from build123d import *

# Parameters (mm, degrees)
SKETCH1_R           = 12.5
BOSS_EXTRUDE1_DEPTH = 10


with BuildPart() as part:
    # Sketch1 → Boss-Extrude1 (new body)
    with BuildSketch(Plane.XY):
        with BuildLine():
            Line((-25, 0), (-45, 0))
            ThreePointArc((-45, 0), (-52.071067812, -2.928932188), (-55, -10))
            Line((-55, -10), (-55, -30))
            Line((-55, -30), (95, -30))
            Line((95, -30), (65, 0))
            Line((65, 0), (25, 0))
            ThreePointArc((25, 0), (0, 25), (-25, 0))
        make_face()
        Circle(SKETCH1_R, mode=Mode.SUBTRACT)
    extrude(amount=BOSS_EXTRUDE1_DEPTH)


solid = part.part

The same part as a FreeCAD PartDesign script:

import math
import FreeCAD as App
import Part
import Sketcher
from FreeCAD import Vector
Q = App.Units.Quantity

doc = App.newDocument("Part")
body = doc.addObject("PartDesign::Body", "Body")

sketch1 = doc.addObject("Sketcher::SketchObject", "Sketch")
body.addObject(sketch1)
sketch1.AttachmentSupport = (doc.XY_Plane, [""])
sketch1.MapMode = "FlatFace"
sketch1.addGeometry([
    Part.LineSegment(Vector(-25, 0, 0), Vector(-45, 0, 0)),
    Part.ArcOfCircle(Part.Circle(Vector(-45, -10, 0), Vector(0, 0, 1), 10), math.radians(90), math.radians(180)),
    Part.LineSegment(Vector(-55, -10, 0), Vector(-55, -30, 0)),
    Part.LineSegment(Vector(-55, -30, 0), Vector(95, -30, 0)),
    Part.LineSegment(Vector(95, -30, 0), Vector(65, 0, 0)),
    Part.LineSegment(Vector(65, 0, 0), Vector(25, 0, 0)),
    Part.ArcOfCircle(Part.Circle(Vector(0, 0, 0), Vector(0, 0, 1), 25), math.radians(0), math.radians(180)),
    Part.Circle(Vector(0, 0, 0), Vector(0, 0, 1), 12),
], False)
sketch1.addConstraint([
    Sketcher.Constraint("Tangent", 0, 2, 1, 1),
    Sketcher.Constraint("Tangent", 1, 2, 2, 1),
    Sketcher.Constraint("Coincident", 2, 2, 3, 1),
    Sketcher.Constraint("Coincident", 3, 2, 4, 1),
    Sketcher.Constraint("Coincident", 4, 2, 5, 1),
    Sketcher.Constraint("Coincident", 5, 2, 6, 1),
    Sketcher.Constraint("Coincident", 6, 2, 0, 1),
    Sketcher.Constraint("Horizontal", 0),
    Sketcher.Constraint("Vertical", 2),
    Sketcher.Constraint("Horizontal", 3),
    Sketcher.Constraint("Horizontal", 5),
    Sketcher.Constraint("Coincident", 6, 3, -1, 1),
    Sketcher.Constraint("Coincident", 7, 3, -1, 1),
    Sketcher.Constraint("PointOnObject", 0, 2, -1),
    Sketcher.Constraint("PointOnObject", 4, 2, -1),
    Sketcher.Constraint("Equal", 0, 2),
    Sketcher.Constraint("Diameter", 7, Q("25 mm")),
    Sketcher.Constraint("Radius", 1, Q("10 mm")),
    Sketcher.Constraint("Radius", 6, Q("25 mm")),
    Sketcher.Constraint("DistanceX", 0, 2, 0, 1, Q("20 mm")),
    Sketcher.Constraint("DistanceX", 3, 1, 3, 2, Q("150 mm")),
    Sketcher.Constraint("DistanceX", 5, 2, 5, 1, Q("40 mm")),
])
pad1 = doc.addObject("PartDesign::Pad", "Pad")
body.addObject(pad1)
pad1.Profile = sketch1
pad1.Length = 10

doc.recompute()
